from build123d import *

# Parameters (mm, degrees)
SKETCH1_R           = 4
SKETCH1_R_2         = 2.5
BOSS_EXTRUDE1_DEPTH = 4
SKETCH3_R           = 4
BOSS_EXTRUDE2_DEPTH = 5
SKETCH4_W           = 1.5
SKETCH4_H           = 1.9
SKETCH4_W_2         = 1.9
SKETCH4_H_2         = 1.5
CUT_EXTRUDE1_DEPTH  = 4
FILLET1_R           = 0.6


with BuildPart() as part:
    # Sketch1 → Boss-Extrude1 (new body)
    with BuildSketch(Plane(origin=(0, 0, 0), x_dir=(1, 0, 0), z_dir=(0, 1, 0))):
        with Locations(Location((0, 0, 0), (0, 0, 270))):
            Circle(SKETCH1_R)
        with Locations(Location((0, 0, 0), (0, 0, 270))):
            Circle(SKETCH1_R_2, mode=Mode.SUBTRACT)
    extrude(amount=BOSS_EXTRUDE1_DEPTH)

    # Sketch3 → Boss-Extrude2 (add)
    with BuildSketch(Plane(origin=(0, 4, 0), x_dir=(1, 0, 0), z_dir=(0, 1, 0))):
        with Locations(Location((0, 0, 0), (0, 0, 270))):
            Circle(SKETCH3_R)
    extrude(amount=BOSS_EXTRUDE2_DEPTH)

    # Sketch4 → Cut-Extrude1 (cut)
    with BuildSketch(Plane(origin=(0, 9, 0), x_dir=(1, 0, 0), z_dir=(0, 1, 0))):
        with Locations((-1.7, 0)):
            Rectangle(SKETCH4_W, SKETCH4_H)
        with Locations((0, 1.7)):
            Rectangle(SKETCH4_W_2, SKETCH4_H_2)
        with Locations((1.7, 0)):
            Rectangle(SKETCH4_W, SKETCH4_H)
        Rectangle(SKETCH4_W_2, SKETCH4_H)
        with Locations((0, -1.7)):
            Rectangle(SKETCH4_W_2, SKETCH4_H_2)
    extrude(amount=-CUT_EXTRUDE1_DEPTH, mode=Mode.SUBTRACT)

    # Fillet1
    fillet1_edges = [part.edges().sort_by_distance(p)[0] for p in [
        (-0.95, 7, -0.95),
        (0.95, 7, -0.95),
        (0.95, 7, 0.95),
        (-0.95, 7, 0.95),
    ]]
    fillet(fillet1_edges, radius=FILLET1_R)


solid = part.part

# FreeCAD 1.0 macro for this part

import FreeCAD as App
import Part
import Sketcher
from FreeCAD import Vector
Q = App.Units.Quantity


def edges_at(feature, points):
    """Names of the edges that pass closest to the given points."""
    edges = feature.Shape.Edges
    near = lambda p: min(range(len(edges)), key=lambda i: edges[i].distToShape(Part.Vertex(*p))[0])
    return sorted({f"Edge{near(p) + 1}" for p in points})


def add_polygon(sketch, points):
    """Adds a closed chain of lines whose ends are joined by coincident constraints."""
    first, n = sketch.GeometryCount, len(points)
    for a, b in zip(points, points[1:] + points[:1]):
        sketch.addGeometry(Part.LineSegment(App.Vector(*a, 0), App.Vector(*b, 0)), False)
    for i in range(n):
        sketch.addConstraint(Sketcher.Constraint("Coincident", first + i, 2, first + (i + 1) % n, 1))

doc = App.newDocument("Part")
body = doc.addObject("PartDesign::Body", "Body")

# Sketch on XZ plane
sketch1 = doc.addObject("Sketcher::SketchObject", "Sketch")
body.addObject(sketch1)
sketch1.AttachmentSupport = (doc.XZ_Plane, [""])
sketch1.MapMode = "FlatFace"
sketch1.addGeometry(Part.Circle(Vector(0, 0, 0), Vector(0, 0, 1), 4), False)
sketch1.addGeometry(Part.Circle(Vector(0, 0, 0), Vector(0, 0, 1), 2.5), False)
sketch1.addConstraint(Sketcher.Constraint("Coincident", 0, 3, -1, 1))
sketch1.addConstraint(Sketcher.Constraint("Coincident", 1, 3, -1, 1))
sketch1.addConstraint(Sketcher.Constraint("Diameter", 0, Q("8 mm")))
sketch1.addConstraint(Sketcher.Constraint("Diameter", 1, Q("5 mm")))
pad1 = doc.addObject("PartDesign::Pad", "Pad")
body.addObject(pad1)
pad1.Profile = sketch1
pad1.Length = 4
pad1.Reversed = True

# Sketch on XZ plane
sketch2 = doc.addObject("Sketcher::SketchObject", "Sketch001")
body.addObject(sketch2)
sketch2.AttachmentSupport = (doc.XZ_Plane, [""])
sketch2.MapMode = "FlatFace"
sketch2.AttachmentOffset = App.Placement(Vector(0, 0, -4), App.Rotation())
sketch2.addGeometry(Part.Circle(Vector(0, 0, 0), Vector(0, 0, 1), 4), False)
sketch2.addConstraint(Sketcher.Constraint("Coincident", 0, 3, -1, 1))
sketch2.addConstraint(Sketcher.Constraint("Diameter", 0, Q("8 mm")))
pad2 = doc.addObject("PartDesign::Pad", "Pad001")
body.addObject(pad2)
pad2.Profile = sketch2
pad2.Length = 5
pad2.Reversed = True

# Sketch on XZ plane
sketch3 = doc.addObject("Sketcher::SketchObject", "Sketch002")
body.addObject(sketch3)
sketch3.AttachmentSupport = (doc.XZ_Plane, [""])
sketch3.MapMode = "FlatFace"
sketch3.AttachmentOffset = App.Placement(Vector(0, 0, -9), App.Rotation())
add_polygon(sketch3, [(-2.5, -0.9), (-2.5, 0.9), (-0.9, 0.9), (-0.9, 2.5), (0.9, 2.5), (0.9, 0.9), (2.5, 0.9), (2.5, -0.9), (0.9, -0.9), (0.9, -2.5), (-0.9, -2.5), (-0.9, -0.9)])  # lines 0-11
sketch3.addConstraint(Sketcher.Constraint("Vertical", 0))
sketch3.addConstraint(Sketcher.Constraint("Horizontal", 1))
sketch3.addConstraint(Sketcher.Constraint("Vertical", 2))
sketch3.addConstraint(Sketcher.Constraint("Horizontal", 3))
sketch3.addConstraint(Sketcher.Constraint("Vertical", 4))
sketch3.addConstraint(Sketcher.Constraint("Horizontal", 5))
sketch3.addConstraint(Sketcher.Constraint("Vertical", 6))
sketch3.addConstraint(Sketcher.Constraint("Horizontal", 7))
sketch3.addConstraint(Sketcher.Constraint("Vertical", 8))
sketch3.addConstraint(Sketcher.Constraint("Horizontal", 9))
sketch3.addConstraint(Sketcher.Constraint("Vertical", 10))
sketch3.addConstraint(Sketcher.Constraint("Horizontal", 11))
sketch3.addConstraint(Sketcher.Constraint("Symmetric", 0, 2, 6, 2, -1, 1))
sketch3.addConstraint(Sketcher.Constraint("Symmetric", 2, 2, 8, 2, -1, 1))
sketch3.addConstraint(Sketcher.Constraint("Symmetric", 4, 2, 10, 2, -1, 1))
sketch3.addConstraint(Sketcher.Constraint("Symmetric", 1, 2, 4, 2, -2))
sketch3.addConstraint(Sketcher.Constraint("Equal", 9, 0))
sketch3.addConstraint(Sketcher.Constraint("Equal", 11, 2))
sketch3.addConstraint(Sketcher.Constraint("DistanceX", 1, 1, 1, 2, Q("1.5 mm")))
sketch3.addConstraint(Sketcher.Constraint("DistanceX", 3, 1, 3, 2, Q("1.9 mm")))
pocket1 = doc.addObject("PartDesign::Pocket", "Pocket")
body.addObject(pocket1)
pocket1.Profile = sketch3
pocket1.Length = 4
pocket1.Reversed = True
doc.recompute()

fillet = doc.addObject("PartDesign::Fillet", "Fillet")
body.addObject(fillet)
fillet.Base = (pocket1, edges_at(pocket1, [
    (-0.95, 7, -0.95),
    (0.95, 7, -0.95),
    (0.95, 7, 0.95),
    (-0.95, 7, 0.95),
]))
fillet.Radius = 0.6

doc.recompute()
